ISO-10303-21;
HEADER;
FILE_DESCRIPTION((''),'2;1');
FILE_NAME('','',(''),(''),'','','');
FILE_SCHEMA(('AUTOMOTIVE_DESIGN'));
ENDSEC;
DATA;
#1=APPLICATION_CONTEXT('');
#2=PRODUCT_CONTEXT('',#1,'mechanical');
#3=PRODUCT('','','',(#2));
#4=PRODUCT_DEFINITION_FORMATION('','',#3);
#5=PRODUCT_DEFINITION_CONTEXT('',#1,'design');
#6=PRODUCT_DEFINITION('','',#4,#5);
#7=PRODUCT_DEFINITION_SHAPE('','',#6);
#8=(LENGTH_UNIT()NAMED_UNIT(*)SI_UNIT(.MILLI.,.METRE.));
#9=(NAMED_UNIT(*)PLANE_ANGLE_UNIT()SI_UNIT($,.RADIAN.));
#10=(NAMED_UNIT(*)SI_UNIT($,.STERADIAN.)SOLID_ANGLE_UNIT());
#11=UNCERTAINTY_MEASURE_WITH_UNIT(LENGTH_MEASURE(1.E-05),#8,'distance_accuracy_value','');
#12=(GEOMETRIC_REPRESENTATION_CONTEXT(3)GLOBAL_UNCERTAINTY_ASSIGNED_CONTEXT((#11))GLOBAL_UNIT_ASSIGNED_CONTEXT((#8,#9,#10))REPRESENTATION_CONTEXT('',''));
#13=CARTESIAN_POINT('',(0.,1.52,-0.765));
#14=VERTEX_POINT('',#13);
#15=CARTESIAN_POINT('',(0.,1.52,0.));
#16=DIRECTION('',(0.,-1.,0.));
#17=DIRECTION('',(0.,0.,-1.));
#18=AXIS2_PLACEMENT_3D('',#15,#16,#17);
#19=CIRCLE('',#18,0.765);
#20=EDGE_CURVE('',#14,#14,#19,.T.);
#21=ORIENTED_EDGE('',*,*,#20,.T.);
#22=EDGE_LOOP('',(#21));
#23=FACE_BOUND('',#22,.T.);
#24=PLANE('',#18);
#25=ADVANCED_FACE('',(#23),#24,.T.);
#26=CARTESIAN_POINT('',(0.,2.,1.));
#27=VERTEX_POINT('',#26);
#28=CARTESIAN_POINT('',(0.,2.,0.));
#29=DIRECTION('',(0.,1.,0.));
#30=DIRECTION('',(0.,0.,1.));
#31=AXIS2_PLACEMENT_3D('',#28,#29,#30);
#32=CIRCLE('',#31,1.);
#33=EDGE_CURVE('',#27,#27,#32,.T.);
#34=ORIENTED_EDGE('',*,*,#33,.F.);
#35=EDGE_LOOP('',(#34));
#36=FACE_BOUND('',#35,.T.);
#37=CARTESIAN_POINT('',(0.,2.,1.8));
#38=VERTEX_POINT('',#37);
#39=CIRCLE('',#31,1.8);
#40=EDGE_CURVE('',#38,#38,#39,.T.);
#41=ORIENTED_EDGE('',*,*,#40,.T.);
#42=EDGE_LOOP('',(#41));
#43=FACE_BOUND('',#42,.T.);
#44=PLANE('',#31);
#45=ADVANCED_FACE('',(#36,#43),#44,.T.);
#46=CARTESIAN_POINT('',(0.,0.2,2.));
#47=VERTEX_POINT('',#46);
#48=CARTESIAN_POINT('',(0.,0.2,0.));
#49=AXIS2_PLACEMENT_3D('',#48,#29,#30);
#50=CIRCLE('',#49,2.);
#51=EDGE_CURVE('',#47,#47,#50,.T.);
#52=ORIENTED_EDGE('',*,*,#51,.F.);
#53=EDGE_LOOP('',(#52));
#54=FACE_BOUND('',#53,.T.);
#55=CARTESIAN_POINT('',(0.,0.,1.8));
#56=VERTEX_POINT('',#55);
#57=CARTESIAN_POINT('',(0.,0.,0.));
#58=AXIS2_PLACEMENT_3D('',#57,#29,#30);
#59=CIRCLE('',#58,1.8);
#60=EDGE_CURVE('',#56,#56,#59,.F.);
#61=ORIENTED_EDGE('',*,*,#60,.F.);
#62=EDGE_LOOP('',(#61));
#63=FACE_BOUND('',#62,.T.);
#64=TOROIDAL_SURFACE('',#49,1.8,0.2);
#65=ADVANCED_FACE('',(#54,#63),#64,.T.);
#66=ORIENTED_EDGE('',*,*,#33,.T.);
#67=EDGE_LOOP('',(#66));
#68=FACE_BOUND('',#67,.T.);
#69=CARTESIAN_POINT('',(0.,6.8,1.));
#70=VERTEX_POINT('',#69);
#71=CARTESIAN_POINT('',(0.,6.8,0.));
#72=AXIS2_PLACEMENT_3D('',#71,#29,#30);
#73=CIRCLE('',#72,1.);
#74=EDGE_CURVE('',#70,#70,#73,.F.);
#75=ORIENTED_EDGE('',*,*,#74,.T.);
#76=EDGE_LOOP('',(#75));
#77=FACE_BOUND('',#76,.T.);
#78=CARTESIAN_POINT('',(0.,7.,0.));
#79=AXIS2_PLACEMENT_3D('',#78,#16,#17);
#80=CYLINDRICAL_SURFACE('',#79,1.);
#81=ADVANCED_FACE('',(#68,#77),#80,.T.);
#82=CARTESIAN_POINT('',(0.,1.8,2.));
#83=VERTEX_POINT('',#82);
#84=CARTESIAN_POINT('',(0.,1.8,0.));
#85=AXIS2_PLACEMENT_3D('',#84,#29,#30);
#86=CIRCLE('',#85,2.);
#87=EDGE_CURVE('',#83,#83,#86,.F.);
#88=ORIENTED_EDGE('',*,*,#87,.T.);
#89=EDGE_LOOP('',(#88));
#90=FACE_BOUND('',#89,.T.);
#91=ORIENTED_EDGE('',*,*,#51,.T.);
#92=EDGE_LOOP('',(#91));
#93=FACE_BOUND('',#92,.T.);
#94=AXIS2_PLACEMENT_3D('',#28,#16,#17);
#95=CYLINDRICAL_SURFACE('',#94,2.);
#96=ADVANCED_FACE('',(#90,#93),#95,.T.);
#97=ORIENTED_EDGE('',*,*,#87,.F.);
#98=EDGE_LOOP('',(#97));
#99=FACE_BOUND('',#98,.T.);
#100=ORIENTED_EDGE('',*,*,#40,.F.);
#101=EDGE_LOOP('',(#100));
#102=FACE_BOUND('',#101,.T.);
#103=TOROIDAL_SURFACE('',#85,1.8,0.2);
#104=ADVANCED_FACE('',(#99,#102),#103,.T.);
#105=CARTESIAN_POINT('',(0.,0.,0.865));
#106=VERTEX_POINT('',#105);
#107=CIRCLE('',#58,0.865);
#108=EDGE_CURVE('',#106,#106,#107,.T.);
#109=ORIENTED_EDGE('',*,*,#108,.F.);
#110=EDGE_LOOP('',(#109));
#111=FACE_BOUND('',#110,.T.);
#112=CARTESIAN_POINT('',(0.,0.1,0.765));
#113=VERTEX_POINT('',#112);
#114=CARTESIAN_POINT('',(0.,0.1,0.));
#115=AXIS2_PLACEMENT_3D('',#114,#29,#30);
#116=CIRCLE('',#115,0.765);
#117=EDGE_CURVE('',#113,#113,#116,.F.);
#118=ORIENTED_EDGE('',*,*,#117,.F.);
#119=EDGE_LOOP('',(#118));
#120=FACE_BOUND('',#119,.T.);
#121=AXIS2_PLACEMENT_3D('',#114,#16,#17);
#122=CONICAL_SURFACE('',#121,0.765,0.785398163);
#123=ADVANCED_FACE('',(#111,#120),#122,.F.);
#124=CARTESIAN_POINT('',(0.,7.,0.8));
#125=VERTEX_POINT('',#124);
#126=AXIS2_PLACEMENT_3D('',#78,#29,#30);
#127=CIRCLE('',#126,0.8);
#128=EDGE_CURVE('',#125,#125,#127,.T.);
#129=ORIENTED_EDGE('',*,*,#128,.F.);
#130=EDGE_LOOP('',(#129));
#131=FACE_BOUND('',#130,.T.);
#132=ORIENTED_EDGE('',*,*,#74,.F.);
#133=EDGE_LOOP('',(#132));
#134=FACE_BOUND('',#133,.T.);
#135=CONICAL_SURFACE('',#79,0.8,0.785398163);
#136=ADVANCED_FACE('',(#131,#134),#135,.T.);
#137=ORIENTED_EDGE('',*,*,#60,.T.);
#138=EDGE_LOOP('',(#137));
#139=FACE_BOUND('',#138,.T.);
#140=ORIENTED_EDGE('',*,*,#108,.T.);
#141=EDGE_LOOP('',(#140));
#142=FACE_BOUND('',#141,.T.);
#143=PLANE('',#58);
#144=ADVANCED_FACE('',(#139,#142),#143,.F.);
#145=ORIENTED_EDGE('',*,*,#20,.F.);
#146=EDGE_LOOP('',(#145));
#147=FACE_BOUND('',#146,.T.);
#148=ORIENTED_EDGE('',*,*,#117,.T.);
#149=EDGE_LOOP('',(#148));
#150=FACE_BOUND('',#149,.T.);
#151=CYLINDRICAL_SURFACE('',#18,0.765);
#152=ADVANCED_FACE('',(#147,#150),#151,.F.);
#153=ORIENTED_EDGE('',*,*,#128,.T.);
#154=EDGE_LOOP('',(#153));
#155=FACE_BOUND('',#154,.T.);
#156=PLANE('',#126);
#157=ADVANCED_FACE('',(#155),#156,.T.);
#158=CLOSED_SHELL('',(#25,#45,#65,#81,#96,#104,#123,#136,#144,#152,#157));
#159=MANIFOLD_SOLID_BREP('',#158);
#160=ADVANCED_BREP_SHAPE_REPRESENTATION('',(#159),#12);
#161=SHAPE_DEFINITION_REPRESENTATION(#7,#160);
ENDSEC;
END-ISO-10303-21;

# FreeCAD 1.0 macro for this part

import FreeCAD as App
import Part
import Sketcher

V = App.Vector


def edges_at(feature, points):
    """Names of the edges that pass closest to the given points."""
    edges = feature.Shape.Edges
    near = lambda p: min(range(len(edges)), key=lambda i: edges[i].distToShape(Part.Vertex(*p))[0])
    return sorted({f"Edge{near(p) + 1}" for p in points})

doc = App.newDocument("Part")
params = doc.addObject("Spreadsheet::Sheet", "Params")
for row, (alias, value) in enumerate([
    ("sketch1_diameter", "4 mm"),
    ("pad1_length", "2 mm"),
    ("sketch2_diameter", "2 mm"),
    ("pad2_length", "5 mm"),
    ("fillet_radius", "0.2 mm"),
    ("sketch3_diameter", "1.53 mm"),
    ("pocket1_length", "1.52 mm"),
    ("chamfer_size", "0.1 mm"),
    ("chamfer2_size", "0.2 mm"),
], start=1):
    params.set(f"A{row}", alias)
    params.set(f"B{row}", "=" + value)
    params.setAlias(f"B{row}", alias)

body = doc.addObject("PartDesign::Body", "Body")

# Sketch on XZ plane
sketch1 = doc.addObject("Sketcher::SketchObject", "Sketch")
body.addObject(sketch1)
sketch1.AttachmentSupport = (doc.XZ_Plane, [""])
sketch1.MapMode = "FlatFace"
sketch1.addGeometry(Part.Circle(V(0, 0, 0), V(0, 0, 1), 2), False)
sketch1.addConstraint([
    Sketcher.Constraint("Coincident", 0, 3, -1, 1),
    Sketcher.Constraint("Diameter", 0, 4.0),
])
sketch1.setExpression("Constraints[1]", "Params.sketch1_diameter")
pad1 = doc.addObject("PartDesign::Pad", "Pad")
body.addObject(pad1)
pad1.Profile = sketch1
pad1.setExpression("Length", "Params.pad1_length")
pad1.Reversed = True

# Sketch on XZ plane
sketch2 = doc.addObject("Sketcher::SketchObject", "Sketch001")
body.addObject(sketch2)
sketch2.AttachmentSupport = (doc.XZ_Plane, [""])
sketch2.MapMode = "FlatFace"
sketch2.AttachmentOffset = App.Placement(V(0, 0, -2), App.Rotation())
sketch2.addGeometry(Part.Circle(V(0, 0, 0), V(0, 0, 1), 1), False)
sketch2.addConstraint([
    Sketcher.Constraint("Coincident", 0, 3, -1, 1),
    Sketcher.Constraint("Diameter", 0, 2.0),
])
sketch2.setExpression("Constraints[1]", "Params.sketch2_diameter")
pad2 = doc.addObject("PartDesign::Pad", "Pad001")
body.addObject(pad2)
pad2.Profile = sketch2
pad2.setExpression("Length", "Params.pad2_length")
pad2.Reversed = True
doc.recompute()

fillet = doc.addObject("PartDesign::Fillet", "Fillet")
body.addObject(fillet)
fillet.Base = (pad2, edges_at(pad2, [(0, 0, -2), (0, 2, -2)]))
fillet.setExpression("Radius", "Params.fillet_radius")

# Sketch on XZ plane
sketch3 = doc.addObject("Sketcher::SketchObject", "Sketch002")
body.addObject(sketch3)
sketch3.AttachmentSupport = (doc.XZ_Plane, [""])
sketch3.MapMode = "FlatFace"
sketch3.addGeometry(Part.Circle(V(0, 0, 0), V(0, 0, 1), 0.8), False)
sketch3.addConstraint([
    Sketcher.Constraint("Coincident", 0, 3, -1, 1),
    Sketcher.Constraint("Diameter", 0, 1.53),
])
sketch3.setExpression("Constraints[1]", "Params.sketch3_diameter")
pocket1 = doc.addObject("PartDesign::Pocket", "Pocket")
body.addObject(pocket1)
pocket1.Profile = sketch3
pocket1.setExpression("Length", "Params.pocket1_length")
doc.recompute()

chamfer = doc.addObject("PartDesign::Chamfer", "Chamfer")
body.addObject(chamfer)
chamfer.Base = (pocket1, edges_at(pocket1, [(0, 0, 0.765)]))
chamfer.setExpression("Size", "Params.chamfer_size")
doc.recompute()

chamfer2 = doc.addObject("PartDesign::Chamfer", "Chamfer001")
body.addObject(chamfer2)
chamfer2.Base = (chamfer, edges_at(chamfer, [(0, 7, -1)]))
chamfer2.setExpression("Size", "Params.chamfer2_size")

doc.recompute()
